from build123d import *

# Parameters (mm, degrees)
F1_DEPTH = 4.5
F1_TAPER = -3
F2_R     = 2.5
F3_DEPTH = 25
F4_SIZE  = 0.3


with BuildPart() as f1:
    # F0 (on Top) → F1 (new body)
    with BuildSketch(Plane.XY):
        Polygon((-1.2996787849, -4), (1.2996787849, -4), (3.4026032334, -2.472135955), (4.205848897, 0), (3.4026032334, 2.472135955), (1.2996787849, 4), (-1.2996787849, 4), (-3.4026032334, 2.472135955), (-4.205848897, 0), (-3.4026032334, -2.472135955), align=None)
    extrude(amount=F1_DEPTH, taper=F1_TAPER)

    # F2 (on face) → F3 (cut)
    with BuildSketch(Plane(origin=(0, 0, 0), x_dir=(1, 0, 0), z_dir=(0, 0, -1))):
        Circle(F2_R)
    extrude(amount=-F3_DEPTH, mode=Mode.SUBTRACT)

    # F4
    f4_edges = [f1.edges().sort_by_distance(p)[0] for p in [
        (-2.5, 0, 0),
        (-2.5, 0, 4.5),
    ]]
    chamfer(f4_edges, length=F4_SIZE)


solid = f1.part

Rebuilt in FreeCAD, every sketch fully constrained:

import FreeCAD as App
import Part
import Sketcher
from FreeCAD import Vector
Q = App.Units.Quantity


def edges_at(feature, points):
    """Names of the edges that pass closest to the given points."""
    edges = feature.Shape.Edges
    near = lambda p: min(range(len(edges)), key=lambda i: edges[i].distToShape(Part.Vertex(*p))[0])
    return sorted({f"Edge{near(p) + 1}" for p in points})

doc = App.newDocument("Part")
body = doc.addObject("PartDesign::Body", "Body")

# Sketch on XY plane
sketch1 = doc.addObject("Sketcher::SketchObject", "Sketch")
body.addObject(sketch1)
sketch1.AttachmentSupport = (doc.XY_Plane, [""])
sketch1.MapMode = "FlatFace"
sketch1.addGeometry(Part.LineSegment(Vector(-1.299679, -4, 0), Vector(1.299679, -4, 0)), False)
sketch1.addGeometry(Part.LineSegment(Vector(1.299679, -4, 0), Vector(3.402603, -2.472136, 0)), False)
sketch1.addGeometry(Part.LineSegment(Vector(3.402603, -2.472136, 0), Vector(4.205849, 0, 0)), False)
sketch1.addGeometry(Part.LineSegment(Vector(4.205849, 0, 0), Vector(3.402603, 2.472136, 0)), False)
sketch1.addGeometry(Part.LineSegment(Vector(3.402603, 2.472136, 0), Vector(1.299679, 4, 0)), False)
sketch1.addGeometry(Part.LineSegment(Vector(1.299679, 4, 0), Vector(-1.299679, 4, 0)), False)
sketch1.addGeometry(Part.LineSegment(Vector(-1.299679, 4, 0), Vector(-3.402603, 2.472136, 0)), False)
sketch1.addGeometry(Part.LineSegment(Vector(-3.402603, 2.472136, 0), Vector(-4.205849, 0, 0)), False)
sketch1.addGeometry(Part.LineSegment(Vector(-4.205849, 0, 0), Vector(-3.402603, -2.472136, 0)), False)
sketch1.addGeometry(Part.LineSegment(Vector(-3.402603, -2.472136, 0), Vector(-1.299679, -4, 0)), False)
sketch1.addConstraint(Sketcher.Constraint("Coincident", 0, 2, 1, 1))
sketch1.addConstraint(Sketcher.Constraint("Coincident", 1, 2, 2, 1))
sketch1.addConstraint(Sketcher.Constraint("Coincident", 2, 2, 3, 1))
sketch1.addConstraint(Sketcher.Constraint("Coincident", 3, 2, 4, 1))
sketch1.addConstraint(Sketcher.Constraint("Coincident", 4, 2, 5, 1))
sketch1.addConstraint(Sketcher.Constraint("Coincident", 5, 2, 6, 1))
sketch1.addConstraint(Sketcher.Constraint("Coincident", 6, 2, 7, 1))
sketch1.addConstraint(Sketcher.Constraint("Coincident", 7, 2, 8, 1))
sketch1.addConstraint(Sketcher.Constraint("Coincident", 8, 2, 9, 1))
sketch1.addConstraint(Sketcher.Constraint("Coincident", 9, 2, 0, 1))
sketch1.addConstraint(Sketcher.Constraint("Horizontal", 0))
sketch1.addConstraint(Sketcher.Constraint("Horizontal", 5))
sketch1.addConstraint(Sketcher.Constraint("Symmetric", 0, 2, 5, 2, -1, 1))
sketch1.addConstraint(Sketcher.Constraint("Symmetric", 1, 2, 6, 2, -1, 1))
sketch1.addConstraint(Sketcher.Constraint("Symmetric", 2, 2, 7, 2, -1, 1))
sketch1.addConstraint(Sketcher.Constraint("Symmetric", 3, 2, 8, 2, -1, 1))
sketch1.addConstraint(Sketcher.Constraint("Symmetric", 3, 2, 6, 2, -2))
sketch1.addConstraint(Sketcher.Constraint("PointOnObject", 2, 2, -1))
sketch1.addConstraint(Sketcher.Constraint("Parallel", 4, 9))
sketch1.addConstraint(Sketcher.Constraint("Vertical", 0, 2, 4, 2))
sketch1.addConstraint(Sketcher.Constraint("Equal", 1, 2))
sketch1.addConstraint(Sketcher.Constraint("Angle", 1, Q("36 deg")))
sketch1.addConstraint(Sketcher.Constraint("Angle", 2, Q("72 deg")))
sketch1.addConstraint(Sketcher.Constraint("DistanceY", 0, 2, -1, 1, Q("4 mm")))
sketch1.addConstraint(Sketcher.Constraint("DistanceX", 0, 1, 0, 2, Q("2.599358 mm")))
pad1 = doc.addObject("PartDesign::Pad", "Pad")
body.addObject(pad1)
pad1.Profile = sketch1
pad1.Length = 4.5
pad1.TaperAngle = 3

# Sketch on XY plane
sketch2 = doc.addObject("Sketcher::SketchObject", "Sketch001")
body.addObject(sketch2)
sketch2.AttachmentSupport = (doc.XY_Plane, [""])
sketch2.MapMode = "FlatFace"
sketch2.addGeometry(Part.Circle(Vector(0, 0, 0), Vector(0, 0, 1), 2.5), False)
sketch2.addConstraint(Sketcher.Constraint("Coincident", 0, 3, -1, 1))
sketch2.addConstraint(Sketcher.Constraint("Diameter", 0, Q("5 mm")))
pocket1 = doc.addObject("PartDesign::Pocket", "Pocket")
body.addObject(pocket1)
pocket1.Profile = sketch2
pocket1.Length = 25
pocket1.Reversed = True
doc.recompute()

chamfer = doc.addObject("PartDesign::Chamfer", "Chamfer")
body.addObject(chamfer)
chamfer.Base = (pocket1, edges_at(pocket1, [(-2.5, 0, 0), (-2.5, 0, 4.5)]))
chamfer.Size = 0.3

doc.recompute()
